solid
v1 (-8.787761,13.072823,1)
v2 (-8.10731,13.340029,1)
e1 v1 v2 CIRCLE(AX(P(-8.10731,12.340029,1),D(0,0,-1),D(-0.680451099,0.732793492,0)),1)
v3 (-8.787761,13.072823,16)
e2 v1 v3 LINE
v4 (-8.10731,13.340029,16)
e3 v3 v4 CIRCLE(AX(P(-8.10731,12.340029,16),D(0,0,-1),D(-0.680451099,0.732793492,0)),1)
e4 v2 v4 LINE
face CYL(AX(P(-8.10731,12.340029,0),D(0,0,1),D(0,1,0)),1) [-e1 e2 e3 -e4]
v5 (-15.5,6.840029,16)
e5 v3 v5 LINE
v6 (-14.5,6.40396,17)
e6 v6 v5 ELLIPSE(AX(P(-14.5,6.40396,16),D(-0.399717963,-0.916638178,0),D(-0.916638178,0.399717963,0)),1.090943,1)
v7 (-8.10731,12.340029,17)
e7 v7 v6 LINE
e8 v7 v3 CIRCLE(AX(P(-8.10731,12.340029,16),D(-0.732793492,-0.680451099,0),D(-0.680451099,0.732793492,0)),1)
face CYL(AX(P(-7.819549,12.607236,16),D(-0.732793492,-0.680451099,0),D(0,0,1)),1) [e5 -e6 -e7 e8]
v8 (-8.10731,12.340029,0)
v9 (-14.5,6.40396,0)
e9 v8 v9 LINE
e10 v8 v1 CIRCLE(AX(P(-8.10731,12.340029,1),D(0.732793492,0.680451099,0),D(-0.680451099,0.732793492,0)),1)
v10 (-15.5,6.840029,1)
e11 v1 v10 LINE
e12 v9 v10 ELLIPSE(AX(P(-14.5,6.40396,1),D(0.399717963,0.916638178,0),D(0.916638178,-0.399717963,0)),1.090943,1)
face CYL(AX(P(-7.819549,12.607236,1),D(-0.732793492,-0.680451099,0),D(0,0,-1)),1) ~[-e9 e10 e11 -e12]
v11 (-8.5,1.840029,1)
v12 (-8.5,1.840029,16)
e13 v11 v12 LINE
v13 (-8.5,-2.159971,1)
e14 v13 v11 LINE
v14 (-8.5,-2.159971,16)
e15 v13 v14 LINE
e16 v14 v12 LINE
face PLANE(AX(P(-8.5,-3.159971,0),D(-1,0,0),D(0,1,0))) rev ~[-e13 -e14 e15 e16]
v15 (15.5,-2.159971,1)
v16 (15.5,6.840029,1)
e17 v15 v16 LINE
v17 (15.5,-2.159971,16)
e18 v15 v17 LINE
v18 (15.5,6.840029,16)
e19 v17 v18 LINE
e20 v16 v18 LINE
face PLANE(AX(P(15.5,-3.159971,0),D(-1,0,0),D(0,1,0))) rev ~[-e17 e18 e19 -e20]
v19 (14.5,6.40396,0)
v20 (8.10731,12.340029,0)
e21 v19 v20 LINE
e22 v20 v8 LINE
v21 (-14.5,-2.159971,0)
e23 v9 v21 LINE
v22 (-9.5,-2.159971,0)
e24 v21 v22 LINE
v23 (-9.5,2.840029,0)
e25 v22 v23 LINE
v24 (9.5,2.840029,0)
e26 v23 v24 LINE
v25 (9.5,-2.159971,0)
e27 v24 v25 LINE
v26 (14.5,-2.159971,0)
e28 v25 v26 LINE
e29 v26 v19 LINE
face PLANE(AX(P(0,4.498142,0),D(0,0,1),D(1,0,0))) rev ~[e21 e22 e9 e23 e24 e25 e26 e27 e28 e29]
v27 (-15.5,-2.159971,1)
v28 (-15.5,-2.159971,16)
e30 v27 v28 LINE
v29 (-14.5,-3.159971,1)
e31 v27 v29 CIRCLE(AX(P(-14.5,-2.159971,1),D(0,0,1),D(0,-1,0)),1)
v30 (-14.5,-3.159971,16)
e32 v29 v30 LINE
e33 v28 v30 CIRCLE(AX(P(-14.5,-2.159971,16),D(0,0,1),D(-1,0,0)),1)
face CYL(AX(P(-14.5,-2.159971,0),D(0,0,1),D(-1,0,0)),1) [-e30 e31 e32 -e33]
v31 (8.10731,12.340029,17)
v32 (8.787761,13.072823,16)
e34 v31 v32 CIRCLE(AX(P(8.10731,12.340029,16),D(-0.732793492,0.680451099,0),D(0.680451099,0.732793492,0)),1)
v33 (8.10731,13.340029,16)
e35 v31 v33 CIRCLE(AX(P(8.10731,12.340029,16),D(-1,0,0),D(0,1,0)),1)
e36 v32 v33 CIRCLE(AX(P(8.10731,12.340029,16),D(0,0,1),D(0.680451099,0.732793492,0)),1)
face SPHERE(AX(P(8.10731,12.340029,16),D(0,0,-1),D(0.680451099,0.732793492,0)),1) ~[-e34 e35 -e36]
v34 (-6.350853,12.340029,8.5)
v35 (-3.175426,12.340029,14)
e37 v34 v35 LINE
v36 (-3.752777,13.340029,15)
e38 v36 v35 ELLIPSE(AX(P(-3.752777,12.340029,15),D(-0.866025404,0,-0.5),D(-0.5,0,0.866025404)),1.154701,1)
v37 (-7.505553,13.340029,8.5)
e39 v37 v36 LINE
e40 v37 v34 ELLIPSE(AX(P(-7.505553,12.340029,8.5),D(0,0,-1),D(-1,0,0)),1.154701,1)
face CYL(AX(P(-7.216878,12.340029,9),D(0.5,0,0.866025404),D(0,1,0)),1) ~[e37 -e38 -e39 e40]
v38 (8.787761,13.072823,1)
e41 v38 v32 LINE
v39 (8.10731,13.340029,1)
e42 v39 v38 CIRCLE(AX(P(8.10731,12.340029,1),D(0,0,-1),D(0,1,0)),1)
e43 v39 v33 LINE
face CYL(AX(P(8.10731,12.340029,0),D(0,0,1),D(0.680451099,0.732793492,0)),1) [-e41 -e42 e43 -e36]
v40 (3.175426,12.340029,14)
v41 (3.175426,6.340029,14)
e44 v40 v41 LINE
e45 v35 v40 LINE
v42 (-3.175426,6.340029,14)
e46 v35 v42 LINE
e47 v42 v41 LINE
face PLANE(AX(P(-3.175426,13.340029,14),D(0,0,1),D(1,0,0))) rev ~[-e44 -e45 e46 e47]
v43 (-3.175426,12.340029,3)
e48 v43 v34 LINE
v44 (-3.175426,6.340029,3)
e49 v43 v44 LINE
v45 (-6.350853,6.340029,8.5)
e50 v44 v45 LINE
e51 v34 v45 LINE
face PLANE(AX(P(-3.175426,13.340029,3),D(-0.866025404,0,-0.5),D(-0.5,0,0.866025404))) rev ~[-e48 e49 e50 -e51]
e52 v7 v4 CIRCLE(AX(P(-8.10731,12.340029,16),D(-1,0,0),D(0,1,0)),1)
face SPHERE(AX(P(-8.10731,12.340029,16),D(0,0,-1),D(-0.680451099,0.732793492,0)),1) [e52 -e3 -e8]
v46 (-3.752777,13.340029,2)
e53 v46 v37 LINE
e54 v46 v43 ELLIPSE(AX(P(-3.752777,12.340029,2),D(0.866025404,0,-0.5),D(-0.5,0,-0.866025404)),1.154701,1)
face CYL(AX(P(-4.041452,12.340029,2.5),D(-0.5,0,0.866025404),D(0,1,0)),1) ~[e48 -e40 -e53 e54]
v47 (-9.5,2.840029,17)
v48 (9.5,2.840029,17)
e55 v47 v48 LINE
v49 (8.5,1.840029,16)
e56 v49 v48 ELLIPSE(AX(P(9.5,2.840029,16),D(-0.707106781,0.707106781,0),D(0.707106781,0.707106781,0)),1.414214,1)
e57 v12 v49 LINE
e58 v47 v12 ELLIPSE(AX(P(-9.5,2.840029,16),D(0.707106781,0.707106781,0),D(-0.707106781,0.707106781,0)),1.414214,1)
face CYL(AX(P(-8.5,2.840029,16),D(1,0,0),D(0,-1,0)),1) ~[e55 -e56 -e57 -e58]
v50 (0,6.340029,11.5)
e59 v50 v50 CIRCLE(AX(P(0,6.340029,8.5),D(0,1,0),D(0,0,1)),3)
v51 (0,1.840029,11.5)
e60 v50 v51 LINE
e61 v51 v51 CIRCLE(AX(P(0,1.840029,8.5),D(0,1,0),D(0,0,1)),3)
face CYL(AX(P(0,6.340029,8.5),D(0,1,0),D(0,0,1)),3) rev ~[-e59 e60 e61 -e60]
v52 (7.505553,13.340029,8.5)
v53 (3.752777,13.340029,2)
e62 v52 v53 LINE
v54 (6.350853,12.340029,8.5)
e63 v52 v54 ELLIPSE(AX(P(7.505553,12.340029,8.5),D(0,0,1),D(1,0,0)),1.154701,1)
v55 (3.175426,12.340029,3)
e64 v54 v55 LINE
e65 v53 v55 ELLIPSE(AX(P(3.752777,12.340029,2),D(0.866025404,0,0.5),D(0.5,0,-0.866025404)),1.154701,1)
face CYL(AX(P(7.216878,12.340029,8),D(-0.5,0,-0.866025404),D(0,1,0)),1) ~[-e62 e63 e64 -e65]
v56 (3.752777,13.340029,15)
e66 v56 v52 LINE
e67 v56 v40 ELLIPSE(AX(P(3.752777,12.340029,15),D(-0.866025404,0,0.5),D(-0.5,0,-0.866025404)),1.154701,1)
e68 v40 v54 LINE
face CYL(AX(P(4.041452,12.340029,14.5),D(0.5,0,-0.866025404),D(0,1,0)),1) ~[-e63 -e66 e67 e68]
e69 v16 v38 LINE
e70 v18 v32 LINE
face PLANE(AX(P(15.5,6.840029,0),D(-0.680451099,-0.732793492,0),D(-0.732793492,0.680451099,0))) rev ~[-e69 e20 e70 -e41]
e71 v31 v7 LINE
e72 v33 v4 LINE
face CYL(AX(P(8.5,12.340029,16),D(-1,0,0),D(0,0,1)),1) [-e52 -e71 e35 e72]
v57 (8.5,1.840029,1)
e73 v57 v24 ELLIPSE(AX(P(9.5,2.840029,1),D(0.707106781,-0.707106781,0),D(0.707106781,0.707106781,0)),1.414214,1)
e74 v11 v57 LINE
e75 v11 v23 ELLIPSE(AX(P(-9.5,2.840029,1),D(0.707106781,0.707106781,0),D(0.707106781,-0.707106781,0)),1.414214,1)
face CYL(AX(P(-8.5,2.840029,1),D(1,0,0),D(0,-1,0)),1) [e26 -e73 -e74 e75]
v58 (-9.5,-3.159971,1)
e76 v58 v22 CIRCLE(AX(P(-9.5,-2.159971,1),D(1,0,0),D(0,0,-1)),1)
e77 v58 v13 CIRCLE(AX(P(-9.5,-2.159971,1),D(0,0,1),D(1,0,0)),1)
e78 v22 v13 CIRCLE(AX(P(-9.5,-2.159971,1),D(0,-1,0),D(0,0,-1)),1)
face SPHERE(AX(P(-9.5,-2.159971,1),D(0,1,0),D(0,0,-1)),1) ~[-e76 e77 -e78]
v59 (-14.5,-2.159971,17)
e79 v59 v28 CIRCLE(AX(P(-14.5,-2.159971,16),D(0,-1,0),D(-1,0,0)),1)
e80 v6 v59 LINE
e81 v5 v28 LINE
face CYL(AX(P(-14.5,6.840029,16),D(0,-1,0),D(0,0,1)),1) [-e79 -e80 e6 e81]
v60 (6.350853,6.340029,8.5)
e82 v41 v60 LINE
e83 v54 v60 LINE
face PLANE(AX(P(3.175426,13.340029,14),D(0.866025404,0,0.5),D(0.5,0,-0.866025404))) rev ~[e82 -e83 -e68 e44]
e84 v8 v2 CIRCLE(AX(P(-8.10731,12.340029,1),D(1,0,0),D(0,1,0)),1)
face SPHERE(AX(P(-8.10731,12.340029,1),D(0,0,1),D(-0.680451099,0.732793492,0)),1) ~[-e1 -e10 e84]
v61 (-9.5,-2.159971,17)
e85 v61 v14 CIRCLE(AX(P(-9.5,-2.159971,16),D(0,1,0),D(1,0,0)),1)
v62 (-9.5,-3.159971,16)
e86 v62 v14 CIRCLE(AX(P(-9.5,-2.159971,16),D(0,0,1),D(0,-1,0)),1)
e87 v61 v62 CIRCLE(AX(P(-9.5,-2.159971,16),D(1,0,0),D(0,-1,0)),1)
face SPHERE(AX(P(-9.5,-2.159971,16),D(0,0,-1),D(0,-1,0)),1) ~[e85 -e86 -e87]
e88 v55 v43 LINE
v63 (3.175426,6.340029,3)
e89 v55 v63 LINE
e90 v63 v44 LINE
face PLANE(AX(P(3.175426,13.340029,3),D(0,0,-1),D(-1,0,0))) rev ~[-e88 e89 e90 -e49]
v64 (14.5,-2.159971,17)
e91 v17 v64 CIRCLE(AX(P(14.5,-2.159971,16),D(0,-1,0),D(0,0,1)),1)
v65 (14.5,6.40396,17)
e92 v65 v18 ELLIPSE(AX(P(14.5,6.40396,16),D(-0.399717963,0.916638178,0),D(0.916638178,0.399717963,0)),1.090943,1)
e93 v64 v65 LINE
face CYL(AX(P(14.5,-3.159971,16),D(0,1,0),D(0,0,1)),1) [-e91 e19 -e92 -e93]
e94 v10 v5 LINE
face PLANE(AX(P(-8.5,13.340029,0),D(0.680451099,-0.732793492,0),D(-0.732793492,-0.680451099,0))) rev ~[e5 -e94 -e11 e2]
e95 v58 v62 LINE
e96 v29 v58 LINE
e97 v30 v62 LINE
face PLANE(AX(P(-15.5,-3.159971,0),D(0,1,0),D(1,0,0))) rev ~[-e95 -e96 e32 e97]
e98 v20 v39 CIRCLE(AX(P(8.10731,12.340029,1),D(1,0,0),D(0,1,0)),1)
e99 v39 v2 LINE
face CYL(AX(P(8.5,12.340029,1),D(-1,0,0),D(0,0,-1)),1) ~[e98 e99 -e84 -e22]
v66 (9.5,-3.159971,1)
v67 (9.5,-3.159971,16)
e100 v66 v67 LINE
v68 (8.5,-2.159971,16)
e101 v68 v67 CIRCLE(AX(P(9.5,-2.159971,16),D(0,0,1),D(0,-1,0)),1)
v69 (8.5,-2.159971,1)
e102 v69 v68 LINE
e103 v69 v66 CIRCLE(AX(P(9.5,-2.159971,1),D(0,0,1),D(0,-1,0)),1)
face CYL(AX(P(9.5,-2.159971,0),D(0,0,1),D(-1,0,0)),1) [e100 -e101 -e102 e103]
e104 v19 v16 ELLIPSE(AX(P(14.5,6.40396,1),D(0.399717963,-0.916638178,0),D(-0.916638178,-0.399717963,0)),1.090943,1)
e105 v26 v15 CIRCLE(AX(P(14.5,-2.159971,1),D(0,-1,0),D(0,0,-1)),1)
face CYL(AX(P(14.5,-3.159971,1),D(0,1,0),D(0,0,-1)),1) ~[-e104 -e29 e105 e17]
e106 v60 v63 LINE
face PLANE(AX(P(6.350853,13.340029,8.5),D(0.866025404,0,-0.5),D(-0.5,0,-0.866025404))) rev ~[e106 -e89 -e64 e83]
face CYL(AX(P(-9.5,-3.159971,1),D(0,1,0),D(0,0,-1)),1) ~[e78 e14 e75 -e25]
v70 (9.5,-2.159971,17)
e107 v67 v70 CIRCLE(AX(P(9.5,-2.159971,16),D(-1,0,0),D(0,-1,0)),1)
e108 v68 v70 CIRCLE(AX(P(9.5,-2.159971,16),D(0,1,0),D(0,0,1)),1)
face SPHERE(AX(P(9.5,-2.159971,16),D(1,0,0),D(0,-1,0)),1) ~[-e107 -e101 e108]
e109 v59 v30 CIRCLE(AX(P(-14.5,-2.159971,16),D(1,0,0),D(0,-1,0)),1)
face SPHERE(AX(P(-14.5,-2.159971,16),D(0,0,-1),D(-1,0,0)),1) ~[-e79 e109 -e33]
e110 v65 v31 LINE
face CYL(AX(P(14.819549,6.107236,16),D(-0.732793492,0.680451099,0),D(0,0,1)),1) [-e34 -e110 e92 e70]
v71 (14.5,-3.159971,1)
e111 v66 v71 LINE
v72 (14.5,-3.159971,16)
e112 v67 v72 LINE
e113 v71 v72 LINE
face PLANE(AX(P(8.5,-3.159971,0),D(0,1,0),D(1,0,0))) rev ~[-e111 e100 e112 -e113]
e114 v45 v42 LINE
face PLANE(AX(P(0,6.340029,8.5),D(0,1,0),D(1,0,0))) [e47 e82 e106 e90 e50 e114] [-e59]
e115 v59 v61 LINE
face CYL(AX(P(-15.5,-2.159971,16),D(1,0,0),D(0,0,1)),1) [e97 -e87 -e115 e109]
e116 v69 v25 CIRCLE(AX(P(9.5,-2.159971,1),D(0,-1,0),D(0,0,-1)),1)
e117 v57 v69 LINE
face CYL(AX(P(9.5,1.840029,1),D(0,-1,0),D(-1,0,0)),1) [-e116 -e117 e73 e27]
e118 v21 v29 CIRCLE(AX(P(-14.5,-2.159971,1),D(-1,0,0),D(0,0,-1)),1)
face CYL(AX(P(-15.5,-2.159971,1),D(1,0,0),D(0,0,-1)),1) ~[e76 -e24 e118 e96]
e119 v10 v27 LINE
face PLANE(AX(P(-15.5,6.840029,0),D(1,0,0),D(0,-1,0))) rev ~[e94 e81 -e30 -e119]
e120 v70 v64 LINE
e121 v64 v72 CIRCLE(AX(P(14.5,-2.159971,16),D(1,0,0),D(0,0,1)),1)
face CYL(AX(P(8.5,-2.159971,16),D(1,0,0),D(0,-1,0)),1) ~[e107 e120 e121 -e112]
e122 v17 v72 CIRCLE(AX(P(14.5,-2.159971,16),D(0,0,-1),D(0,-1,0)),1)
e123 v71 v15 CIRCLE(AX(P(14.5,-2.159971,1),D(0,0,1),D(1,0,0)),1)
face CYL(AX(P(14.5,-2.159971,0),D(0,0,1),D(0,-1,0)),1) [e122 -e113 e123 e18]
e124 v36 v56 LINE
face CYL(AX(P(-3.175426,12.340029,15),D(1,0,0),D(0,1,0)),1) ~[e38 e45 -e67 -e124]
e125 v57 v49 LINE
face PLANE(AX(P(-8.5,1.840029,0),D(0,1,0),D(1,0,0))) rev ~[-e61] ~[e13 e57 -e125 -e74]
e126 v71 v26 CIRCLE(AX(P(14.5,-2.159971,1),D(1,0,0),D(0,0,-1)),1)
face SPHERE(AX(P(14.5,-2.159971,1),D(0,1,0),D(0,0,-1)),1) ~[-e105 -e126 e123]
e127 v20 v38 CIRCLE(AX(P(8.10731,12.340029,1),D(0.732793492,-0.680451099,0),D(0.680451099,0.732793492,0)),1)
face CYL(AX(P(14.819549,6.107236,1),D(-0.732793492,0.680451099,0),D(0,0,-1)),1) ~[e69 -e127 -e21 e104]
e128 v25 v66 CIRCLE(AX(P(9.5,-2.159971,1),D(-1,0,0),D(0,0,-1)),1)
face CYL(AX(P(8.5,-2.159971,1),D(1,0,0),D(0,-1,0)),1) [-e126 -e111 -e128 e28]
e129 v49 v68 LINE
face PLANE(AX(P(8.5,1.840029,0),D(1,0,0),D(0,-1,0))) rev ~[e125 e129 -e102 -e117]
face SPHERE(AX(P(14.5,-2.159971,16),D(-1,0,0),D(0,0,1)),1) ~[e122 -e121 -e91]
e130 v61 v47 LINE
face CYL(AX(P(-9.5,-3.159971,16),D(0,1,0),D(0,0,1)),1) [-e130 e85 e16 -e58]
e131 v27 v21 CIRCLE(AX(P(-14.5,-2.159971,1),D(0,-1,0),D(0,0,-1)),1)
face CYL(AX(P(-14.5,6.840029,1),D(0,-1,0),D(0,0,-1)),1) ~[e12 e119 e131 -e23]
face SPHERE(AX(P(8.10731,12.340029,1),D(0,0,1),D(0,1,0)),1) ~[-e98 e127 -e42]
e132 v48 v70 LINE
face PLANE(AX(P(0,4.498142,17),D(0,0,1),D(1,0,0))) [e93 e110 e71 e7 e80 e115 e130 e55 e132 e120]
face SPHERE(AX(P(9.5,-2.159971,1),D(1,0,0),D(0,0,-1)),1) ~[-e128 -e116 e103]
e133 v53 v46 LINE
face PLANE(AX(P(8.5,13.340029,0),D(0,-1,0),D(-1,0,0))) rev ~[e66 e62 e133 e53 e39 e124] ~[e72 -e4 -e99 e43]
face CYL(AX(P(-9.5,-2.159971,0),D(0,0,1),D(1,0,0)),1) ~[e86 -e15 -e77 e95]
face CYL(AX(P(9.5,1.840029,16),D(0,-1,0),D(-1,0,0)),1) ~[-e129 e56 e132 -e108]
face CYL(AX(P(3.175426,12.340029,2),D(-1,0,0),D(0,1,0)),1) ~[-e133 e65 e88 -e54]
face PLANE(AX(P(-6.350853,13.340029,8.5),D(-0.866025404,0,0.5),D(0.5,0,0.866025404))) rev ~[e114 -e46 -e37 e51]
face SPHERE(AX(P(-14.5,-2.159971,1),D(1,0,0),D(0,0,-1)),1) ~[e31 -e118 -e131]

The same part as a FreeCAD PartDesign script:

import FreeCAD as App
import Part
import Sketcher
from FreeCAD import Vector
Q = App.Units.Quantity


def edges_at(feature, points):
    """Names of the edges that pass closest to the given points."""
    edges = feature.Shape.Edges
    near = lambda p: min(range(len(edges)), key=lambda i: edges[i].distToShape(Part.Vertex(*p))[0])
    return sorted({f"Edge{near(p) + 1}" for p in points})

doc = App.newDocument("Part")
params = doc.addObject("Spreadsheet::Sheet", "Params")
for row, (alias, value) in enumerate([
    ("sketch1_width", "7 mm"),
    ("sketch1_width2", "17 mm"),
    ("sketch1_height", "5 mm"),
    ("sketch1_height2", "10 mm"),
    ("pad1_length", "17 mm"),
    ("pocket1_length", "7 mm"),
    ("sketch3_diameter", "6 mm"),
    ("pocket2_length", "5 mm"),
    ("fillet_radius", "1 mm"),
], start=1):
    params.set(f"A{row}", alias)
    params.set(f"B{row}", "=" + value)
    params.setAlias(f"B{row}", alias)

body = doc.addObject("PartDesign::Body", "Body")

# Sketch on XY plane
sketch1 = doc.addObject("Sketcher::SketchObject", "Sketch")
body.addObject(sketch1)
sketch1.AttachmentSupport = (doc.XY_Plane, [""])
sketch1.MapMode = "FlatFace"
sketch1.addGeometry(Part.LineSegment(Vector(8.5, 1.840029, 0), Vector(8.5, -3.159971, 0)), False)
sketch1.addGeometry(Part.LineSegment(Vector(8.5, -3.159971, 0), Vector(15.5, -3.159971, 0)), False)
sketch1.addGeometry(Part.LineSegment(Vector(15.5, -3.159971, 0), Vector(15.5, 6.840029, 0)), False)
sketch1.addGeometry(Part.LineSegment(Vector(15.5, 6.840029, 0), Vector(8.5, 13.340029, 0)), False)
sketch1.addGeometry(Part.LineSegment(Vector(8.5, 13.340029, 0), Vector(-8.5, 13.340029, 0)), False)
sketch1.addGeometry(Part.LineSegment(Vector(-8.5, 13.340029, 0), Vector(-15.5, 6.840029, 0)), False)
sketch1.addGeometry(Part.LineSegment(Vector(-15.5, 6.840029, 0), Vector(-15.5, -3.159971, 0)), False)
sketch1.addGeometry(Part.LineSegment(Vector(-15.5, -3.159971, 0), Vector(-8.5, -3.159971, 0)), False)
sketch1.addGeometry(Part.LineSegment(Vector(-8.5, -3.159971, 0), Vector(-8.5, 1.840029, 0)), False)
sketch1.addGeometry(Part.LineSegment(Vector(-8.5, 1.840029, 0), Vector(8.5, 1.840029, 0)), False)
sketch1.addConstraint(Sketcher.Constraint("Coincident", 0, 2, 1, 1))
sketch1.addConstraint(Sketcher.Constraint("Coincident", 1, 2, 2, 1))
sketch1.addConstraint(Sketcher.Constraint("Coincident", 2, 2, 3, 1))
sketch1.addConstraint(Sketcher.Constraint("Coincident", 3, 2, 4, 1))
sketch1.addConstraint(Sketcher.Constraint("Coincident", 4, 2, 5, 1))
sketch1.addConstraint(Sketcher.Constraint("Coincident", 5, 2, 6, 1))
sketch1.addConstraint(Sketcher.Constraint("Coincident", 6, 2, 7, 1))
sketch1.addConstraint(Sketcher.Constraint("Coincident", 7, 2, 8, 1))
sketch1.addConstraint(Sketcher.Constraint("Coincident", 8, 2, 9, 1))
sketch1.addConstraint(Sketcher.Constraint("Coincident", 9, 2, 0, 1))
sketch1.addConstraint(Sketcher.Constraint("Vertical", 0))
sketch1.addConstraint(Sketcher.Constraint("Horizontal", 1))
sketch1.addConstraint(Sketcher.Constraint("Vertical", 2))
sketch1.addConstraint(Sketcher.Constraint("Horizontal", 4))
sketch1.addConstraint(Sketcher.Constraint("Vertical", 6))
sketch1.addConstraint(Sketcher.Constraint("Horizontal", 7))
sketch1.addConstraint(Sketcher.Constraint("Vertical", 8))
sketch1.addConstraint(Sketcher.Constraint("Horizontal", 9))
sketch1.addConstraint(Sketcher.Constraint("Symmetric", 2, 2, 5, 2, -2))
sketch1.addConstraint(Sketcher.Constraint("Symmetric", 0, 2, 7, 2, -2))
sketch1.addConstraint(Sketcher.Constraint("Vertical", 0, 2, 3, 2))
sketch1.addConstraint(Sketcher.Constraint("Vertical", 4, 2, 7, 2))
sketch1.addConstraint(Sketcher.Constraint("DistanceX", 1, 1, 1, 2, Q("7 mm")))
sketch1.addConstraint(Sketcher.Constraint("DistanceX", 4, 2, 4, 1, Q("17 mm")))
sketch1.addConstraint(Sketcher.Constraint("DistanceY", 0, 2, 0, 1, Q("5 mm")))
sketch1.addConstraint(Sketcher.Constraint("DistanceY", 2, 1, 2, 2, Q("10 mm")))
sketch1.addConstraint(Sketcher.Constraint("DistanceY", 2, 2, 3, 2, Q("6.5 mm")))
sketch1.addConstraint(Sketcher.Constraint("DistanceY", 0, 2, -1, 1, Q("3.159971 mm")))
sketch1.setExpression("Constraints[22]", "Params.sketch1_width")
sketch1.setExpression("Constraints[23]", "Params.sketch1_width2")
sketch1.setExpression("Constraints[24]", "Params.sketch1_height")
sketch1.setExpression("Constraints[25]", "Params.sketch1_height2")
pad1 = doc.addObject("PartDesign::Pad", "Pad")
body.addObject(pad1)
pad1.Profile = sketch1
pad1.setExpression("Length", "Params.pad1_length")

# Sketch on XZ plane
sketch2 = doc.addObject("Sketcher::SketchObject", "Sketch001")
body.addObject(sketch2)
sketch2.AttachmentSupport = (doc.XZ_Plane, [""])
sketch2.MapMode = "FlatFace"
sketch2.AttachmentOffset = App.Placement(Vector(0, 0, -13.340029), App.Rotation())
sketch2.addGeometry(Part.LineSegment(Vector(6.350853, 8.5, 0), Vector(3.175426, 3, 0)), False)
sketch2.addGeometry(Part.LineSegment(Vector(3.175426, 3, 0), Vector(-3.175426, 3, 0)), False)
sketch2.addGeometry(Part.LineSegment(Vector(-3.175426, 3, 0), Vector(-6.350853, 8.5, 0)), False)
sketch2.addGeometry(Part.LineSegment(Vector(-6.350853, 8.5, 0), Vector(-3.175426, 14, 0)), False)
sketch2.addGeometry(Part.LineSegment(Vector(-3.175426, 14, 0), Vector(3.175426, 14, 0)), False)
sketch2.addGeometry(Part.LineSegment(Vector(3.175426, 14, 0), Vector(6.350853, 8.5, 0)), False)
sketch2.addConstraint(Sketcher.Constraint("Coincident", 0, 2, 1, 1))
sketch2.addConstraint(Sketcher.Constraint("Coincident", 1, 2, 2, 1))
sketch2.addConstraint(Sketcher.Constraint("Coincident", 2, 2, 3, 1))
sketch2.addConstraint(Sketcher.Constraint("Coincident", 3, 2, 4, 1))
sketch2.addConstraint(Sketcher.Constraint("Coincident", 4, 2, 5, 1))
sketch2.addConstraint(Sketcher.Constraint("Coincident", 5, 2, 0, 1))
sketch2.addConstraint(Sketcher.Constraint("Horizontal", 1))
sketch2.addConstraint(Sketcher.Constraint("Horizontal", 4))
sketch2.addConstraint(Sketcher.Constraint("Symmetric", 2, 2, 5, 2, -2))
sketch2.addConstraint(Sketcher.Constraint("Parallel", 0, 3))
sketch2.addConstraint(Sketcher.Constraint("Parallel", 2, 5))
sketch2.addConstraint(Sketcher.Constraint("Vertical", 1, 2, 3, 2))
sketch2.addConstraint(Sketcher.Constraint("Vertical", 0, 2, 4, 2))
sketch2.addConstraint(Sketcher.Constraint("Angle", 0, Q("-120 deg")))
sketch2.addConstraint(Sketcher.Constraint("DistanceY", -1, 1, 0, 2, Q("3 mm")))
sketch2.addConstraint(Sketcher.Constraint("DistanceY", -1, 1, 3, 2, Q("14 mm")))
sketch2.addConstraint(Sketcher.Constraint("DistanceX", 1, 2, 1, 1, Q("6.350853 mm")))
pocket1 = doc.addObject("PartDesign::Pocket", "Pocket")
body.addObject(pocket1)
pocket1.Profile = sketch2
pocket1.setExpression("Length", "Params.pocket1_length")
pocket1.Reversed = True

# Sketch on XZ plane
sketch3 = doc.addObject("Sketcher::SketchObject", "Sketch002")
body.addObject(sketch3)
sketch3.AttachmentSupport = (doc.XZ_Plane, [""])
sketch3.MapMode = "FlatFace"
sketch3.AttachmentOffset = App.Placement(Vector(0, 0, -6.340029), App.Rotation())
sketch3.addGeometry(Part.Circle(Vector(0, 8.5, 0), Vector(0, 0, 1), 3), False)
sketch3.addConstraint(Sketcher.Constraint("PointOnObject", 0, 3, -2))
sketch3.addConstraint(Sketcher.Constraint("Diameter", 0, Q("6 mm")))
sketch3.addConstraint(Sketcher.Constraint("DistanceY", -1, 1, 0, 3, Q("8.5 mm")))
sketch3.setExpression("Constraints[1]", "Params.sketch3_diameter")
pocket2 = doc.addObject("PartDesign::Pocket", "Pocket001")
body.addObject(pocket2)
pocket2.Profile = sketch3
pocket2.setExpression("Length", "Params.pocket2_length")
pocket2.Reversed = True
doc.recompute()

fillet = doc.addObject("PartDesign::Fillet", "Fillet")
body.addObject(fillet)
fillet.Base = (pocket2, edges_at(pocket2, [
    (12, -3.16, 17),
    (0, 1.84, 0),
    (-8.5, -0.66, 0),
    (-12, -3.16, 0),
    (-15.5, 1.84, 0),
    (-12, 10.09, 0),
    (15.5, 1.84, 17),
    (0, 13.34, 0),
    (12, 10.09, 0),
    (15.5, 1.84, 0),
    (12, -3.16, 0),
    (8.5, -0.66, 0),
    (12, 10.09, 17),
    (0, 13.34, 17),
    (-8.5, -3.16, 8.5),
    (-15.5, -3.16, 8.5),
    (-8.5, 13.34, 8.5),
    (8.5, 13.34, 8.5),
    (15.5, -3.16, 8.5),
    (8.5, -3.16, 8.5),
    (-12, 10.09, 17),
    (-15.5, 1.84, 17),
    (-12, -3.16, 17),
    (-8.5, -0.66, 17),
    (0, 1.84, 17),
    (4.763, 13.34, 11.25),
    (4.763, 13.34, 5.75),
    (0, 13.34, 3),
    (-4.763, 13.34, 5.75),
    (-4.763, 13.34, 11.25),
    (0, 13.34, 14),
    (8.5, -0.66, 17),
]))
fillet.setExpression("Radius", "Params.fillet_radius")

doc.recompute()
